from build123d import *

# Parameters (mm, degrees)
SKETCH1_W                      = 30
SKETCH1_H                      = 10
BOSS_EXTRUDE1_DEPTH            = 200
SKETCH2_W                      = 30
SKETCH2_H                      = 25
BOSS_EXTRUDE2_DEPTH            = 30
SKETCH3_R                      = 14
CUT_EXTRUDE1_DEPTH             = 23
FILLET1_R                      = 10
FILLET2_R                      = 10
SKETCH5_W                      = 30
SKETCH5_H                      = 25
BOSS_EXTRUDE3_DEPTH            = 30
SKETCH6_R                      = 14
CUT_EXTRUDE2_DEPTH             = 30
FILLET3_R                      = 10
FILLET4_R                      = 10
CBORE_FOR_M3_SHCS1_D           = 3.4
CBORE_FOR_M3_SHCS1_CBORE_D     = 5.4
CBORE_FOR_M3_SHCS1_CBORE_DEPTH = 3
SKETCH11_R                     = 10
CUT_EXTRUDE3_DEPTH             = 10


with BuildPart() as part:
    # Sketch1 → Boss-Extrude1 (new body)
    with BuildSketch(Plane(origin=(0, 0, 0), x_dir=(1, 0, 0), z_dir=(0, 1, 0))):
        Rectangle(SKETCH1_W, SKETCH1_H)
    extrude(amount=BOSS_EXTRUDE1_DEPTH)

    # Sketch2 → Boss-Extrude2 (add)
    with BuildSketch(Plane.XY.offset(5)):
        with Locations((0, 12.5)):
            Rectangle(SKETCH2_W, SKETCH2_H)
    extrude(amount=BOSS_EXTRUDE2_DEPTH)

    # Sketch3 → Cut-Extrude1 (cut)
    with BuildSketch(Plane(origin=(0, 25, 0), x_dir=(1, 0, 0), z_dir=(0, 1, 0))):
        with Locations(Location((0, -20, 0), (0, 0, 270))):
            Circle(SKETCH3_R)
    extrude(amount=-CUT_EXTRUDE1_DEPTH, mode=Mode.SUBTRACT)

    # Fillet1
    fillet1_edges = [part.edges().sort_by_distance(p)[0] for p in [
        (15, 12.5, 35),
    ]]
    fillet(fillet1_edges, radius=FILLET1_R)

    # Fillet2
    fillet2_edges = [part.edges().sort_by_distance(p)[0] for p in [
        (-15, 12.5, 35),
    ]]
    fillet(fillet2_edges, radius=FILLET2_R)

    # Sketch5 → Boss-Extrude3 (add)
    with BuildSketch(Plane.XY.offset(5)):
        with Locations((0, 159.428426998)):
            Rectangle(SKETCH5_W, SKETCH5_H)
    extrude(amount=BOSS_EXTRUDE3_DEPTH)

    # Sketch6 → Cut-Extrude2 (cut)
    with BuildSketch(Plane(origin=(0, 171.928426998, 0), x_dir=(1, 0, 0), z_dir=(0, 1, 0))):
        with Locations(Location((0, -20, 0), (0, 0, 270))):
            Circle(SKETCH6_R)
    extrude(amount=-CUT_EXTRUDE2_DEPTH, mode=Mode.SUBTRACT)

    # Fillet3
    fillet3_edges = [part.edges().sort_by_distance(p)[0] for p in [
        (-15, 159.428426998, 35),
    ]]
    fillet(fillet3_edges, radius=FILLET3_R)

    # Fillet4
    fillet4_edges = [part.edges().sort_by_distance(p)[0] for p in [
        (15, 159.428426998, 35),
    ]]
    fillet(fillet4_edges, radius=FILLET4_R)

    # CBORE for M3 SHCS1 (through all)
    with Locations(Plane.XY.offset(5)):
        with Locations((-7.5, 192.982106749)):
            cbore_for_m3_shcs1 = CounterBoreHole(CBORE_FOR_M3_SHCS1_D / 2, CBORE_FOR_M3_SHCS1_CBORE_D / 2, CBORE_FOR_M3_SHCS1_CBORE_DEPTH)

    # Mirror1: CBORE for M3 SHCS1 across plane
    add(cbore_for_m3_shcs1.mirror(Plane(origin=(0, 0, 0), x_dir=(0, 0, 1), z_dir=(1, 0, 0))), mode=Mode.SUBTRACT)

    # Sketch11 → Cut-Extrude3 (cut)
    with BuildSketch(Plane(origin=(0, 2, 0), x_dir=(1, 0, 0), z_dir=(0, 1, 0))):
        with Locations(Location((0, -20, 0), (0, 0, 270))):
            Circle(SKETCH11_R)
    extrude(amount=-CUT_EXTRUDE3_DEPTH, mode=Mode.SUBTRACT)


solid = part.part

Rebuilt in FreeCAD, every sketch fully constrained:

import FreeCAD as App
import Part
import Sketcher


def edges_at(feature, points):
    """Names of the edges that pass closest to the given points."""
    edges = feature.Shape.Edges
    near = lambda p: min(range(len(edges)), key=lambda i: edges[i].distToShape(Part.Vertex(*p))[0])
    return sorted({f"Edge{near(p) + 1}" for p in points})

doc = App.newDocument("Part")
body = doc.addObject("PartDesign::Body", "Body")

# Sketch on XZ plane
sketch1 = body.newObject("Sketcher::SketchObject", "Sketch")
sketch1.AttachmentSupport = (doc.getObject("XZ_Plane"), [""])
sketch1.MapMode = "FlatFace"
sketch1.addGeometry([
    Part.LineSegment(App.Vector(-15, -5, 0), App.Vector(-15, 5, 0)),
    Part.LineSegment(App.Vector(-15, 5, 0), App.Vector(15, 5, 0)),
    Part.LineSegment(App.Vector(15, 5, 0), App.Vector(15, -5, 0)),
    Part.LineSegment(App.Vector(15, -5, 0), App.Vector(-15, -5, 0)),
], False)
sketch1.addConstraint([
    Sketcher.Constraint("Coincident", 0, 2, 1, 1),
    Sketcher.Constraint("Coincident", 1, 2, 2, 1),
    Sketcher.Constraint("Coincident", 2, 2, 3, 1),
    Sketcher.Constraint("Coincident", 3, 2, 0, 1),
    Sketcher.Constraint("Vertical", 0),
    Sketcher.Constraint("Horizontal", 1),
    Sketcher.Constraint("Vertical", 2),
    Sketcher.Constraint("Horizontal", 3),
    Sketcher.Constraint("Symmetric", 0, 2, 2, 2, -1, 1),
    Sketcher.Constraint("DistanceX", 1, 1, 1, 2, 30.0),
    Sketcher.Constraint("DistanceY", 0, 1, 0, 2, 10.0),
])
pad1 = body.newObject("PartDesign::Pad", "Pad")
pad1.Profile = sketch1
pad1.Length = 200
pad1.Reversed = True

# Sketch on XY plane
sketch2 = body.newObject("Sketcher::SketchObject", "Sketch001")
sketch2.AttachmentSupport = (doc.getObject("XY_Plane"), [""])
sketch2.MapMode = "FlatFace"
sketch2.AttachmentOffset = App.Placement(App.Vector(0, 0, 5), App.Rotation())
sketch2.addGeometry([
    Part.LineSegment(App.Vector(-15, 25, 0), App.Vector(-15, 0, 0)),
    Part.LineSegment(App.Vector(-15, 0, 0), App.Vector(15, 0, 0)),
    Part.LineSegment(App.Vector(15, 0, 0), App.Vector(15, 25, 0)),
    Part.LineSegment(App.Vector(15, 25, 0), App.Vector(-15, 25, 0)),
], False)
sketch2.addConstraint([
    Sketcher.Constraint("Coincident", 0, 2, 1, 1),
    Sketcher.Constraint("Coincident", 1, 2, 2, 1),
    Sketcher.Constraint("Coincident", 2, 2, 3, 1),
    Sketcher.Constraint("Coincident", 3, 2, 0, 1),
    Sketcher.Constraint("Vertical", 0),
    Sketcher.Constraint("Horizontal", 1),
    Sketcher.Constraint("Vertical", 2),
    Sketcher.Constraint("Horizontal", 3),
    Sketcher.Constraint("Symmetric", 0, 2, 1, 2, -1, 1),
    Sketcher.Constraint("DistanceX", 1, 1, 1, 2, 30.0),
    Sketcher.Constraint("DistanceY", 0, 2, 0, 1, 25.0),
])
pad2 = body.newObject("PartDesign::Pad", "Pad001")
pad2.Profile = sketch2
pad2.Length = 30

# Sketch on XZ plane
sketch3 = body.newObject("Sketcher::SketchObject", "Sketch002")
sketch3.AttachmentSupport = (doc.getObject("XZ_Plane"), [""])
sketch3.MapMode = "FlatFace"
sketch3.AttachmentOffset = App.Placement(App.Vector(0, 0, -25), App.Rotation())
sketch3.addGeometry(Part.Circle(App.Vector(0, 20, 0), App.Vector(0, 0, 1), 14), False)
sketch3.addConstraint([
    Sketcher.Constraint("PointOnObject", 0, 3, -2),
    Sketcher.Constraint("Diameter", 0, 28.0),
    Sketcher.Constraint("DistanceY", -1, 1, 0, 3, 20.0),
])
pocket1 = body.newObject("PartDesign::Pocket", "Pocket")
pocket1.Profile = sketch3
pocket1.Length = 23
pocket1.Reversed = True
doc.recompute()

fillet = body.newObject("PartDesign::Fillet", "Fillet")
fillet.Base = (pocket1, edges_at(pocket1, [(15, 12.5, 35)]))
fillet.Radius = 10
doc.recompute()

fillet2 = body.newObject("PartDesign::Fillet", "Fillet001")
fillet2.Base = (fillet, edges_at(fillet, [(-15, 12.5, 35)]))
fillet2.Radius = 10

# Sketch on XY plane
sketch4 = body.newObject("Sketcher::SketchObject", "Sketch003")
sketch4.AttachmentSupport = (doc.getObject("XY_Plane"), [""])
sketch4.MapMode = "FlatFace"
sketch4.AttachmentOffset = App.Placement(App.Vector(0, 0, 5), App.Rotation())
sketch4.addGeometry([
    Part.LineSegment(App.Vector(-15, 172, 0), App.Vector(-15, 147, 0)),
    Part.LineSegment(App.Vector(-15, 147, 0), App.Vector(15, 147, 0)),
    Part.LineSegment(App.Vector(15, 147, 0), App.Vector(15, 172, 0)),
    Part.LineSegment(App.Vector(15, 172, 0), App.Vector(-15, 172, 0)),
], False)
sketch4.addConstraint([
    Sketcher.Constraint("Coincident", 0, 2, 1, 1),
    Sketcher.Constraint("Coincident", 1, 2, 2, 1),
    Sketcher.Constraint("Coincident", 2, 2, 3, 1),
    Sketcher.Constraint("Coincident", 3, 2, 0, 1),
    Sketcher.Constraint("Vertical", 0),
    Sketcher.Constraint("Horizontal", 1),
    Sketcher.Constraint("Vertical", 2),
    Sketcher.Constraint("Horizontal", 3),
    Sketcher.Constraint("DistanceX", 1, 1, 1, 2, 30.0),
    Sketcher.Constraint("DistanceY", 0, 2, 0, 1, 25.0),
    Sketcher.Constraint("DistanceX", 0, 2, -1, 1, 15.0),
    Sketcher.Constraint("DistanceY", -1, 1, 0, 2, 146.928427),
])
pad3 = body.newObject("PartDesign::Pad", "Pad002")
pad3.Profile = sketch4
pad3.Length = 30

# Sketch on XZ plane
sketch5 = body.newObject("Sketcher::SketchObject", "Sketch004")
sketch5.AttachmentSupport = (doc.getObject("XZ_Plane"), [""])
sketch5.MapMode = "FlatFace"
sketch5.AttachmentOffset = App.Placement(App.Vector(0, 0, -171.928427), App.Rotation())
sketch5.addGeometry(Part.Circle(App.Vector(0, 20, 0), App.Vector(0, 0, 1), 14), False)
sketch5.addConstraint([
    Sketcher.Constraint("PointOnObject", 0, 3, -2),
    Sketcher.Constraint("Diameter", 0, 28.0),
    Sketcher.Constraint("DistanceY", -1, 1, 0, 3, 20.0),
])
pocket2 = body.newObject("PartDesign::Pocket", "Pocket001")
pocket2.Profile = sketch5
pocket2.Length = 30
pocket2.Reversed = True
doc.recompute()

fillet3 = body.newObject("PartDesign::Fillet", "Fillet002")
fillet3.Base = (pocket2, edges_at(pocket2, [(-15, 159.428, 35)]))
fillet3.Radius = 10
doc.recompute()

fillet4 = body.newObject("PartDesign::Fillet", "Fillet003")
fillet4.Base = (fillet3, edges_at(fillet3, [(15, 159.428, 35)]))
fillet4.Radius = 10

# Sketch on XY plane
sketch6 = body.newObject("Sketcher::SketchObject", "Sketch005")
sketch6.AttachmentSupport = (doc.getObject("XY_Plane"), [""])
sketch6.MapMode = "FlatFace"
sketch6.AttachmentOffset = App.Placement(App.Vector(0, 0, 5), App.Rotation())
sketch6.addGeometry(Part.Circle(App.Vector(-7.5, 193, 0), App.Vector(0, 0, 1), 1.7), False)
sketch6.addConstraint([
    Sketcher.Constraint("Diameter", 0, 3.4),
    Sketcher.Constraint("DistanceX", 0, 3, -1, 1, 7.5),
    Sketcher.Constraint("DistanceY", -1, 1, 0, 3, 192.982107),
])
doc.recompute()
hole = body.newObject("PartDesign::Hole", "Hole")
hole.Profile = sketch6
hole.ThreadType = "None"
hole.Diameter = 3.4
hole.DepthType = "ThroughAll"
hole.HoleCutType = "Counterbore"
hole.HoleCutDiameter = 5.4
hole.HoleCutDepth = 3
doc.recompute()

mirrored = body.newObject("PartDesign::Mirrored", "Mirrored")
mirrored.Originals = [hole]
mirrored.MirrorPlane = (doc.getObject("YZ_Plane"), [""])
body.Tip = mirrored

# Sketch on XZ plane
sketch7 = body.newObject("Sketcher::SketchObject", "Sketch006")
sketch7.AttachmentSupport = (doc.getObject("XZ_Plane"), [""])
sketch7.MapMode = "FlatFace"
sketch7.AttachmentOffset = App.Placement(App.Vector(0, 0, -2), App.Rotation())
sketch7.addGeometry(Part.Circle(App.Vector(0, 20, 0), App.Vector(0, 0, 1), 10), False)
sketch7.addConstraint([
    Sketcher.Constraint("PointOnObject", 0, 3, -2),
    Sketcher.Constraint("Diameter", 0, 20.0),
    Sketcher.Constraint("DistanceY", -1, 1, 0, 3, 20.0),
])
pocket3 = body.newObject("PartDesign::Pocket", "Pocket002")
pocket3.Profile = sketch7
pocket3.Length = 10
pocket3.Reversed = True

doc.recompute()
